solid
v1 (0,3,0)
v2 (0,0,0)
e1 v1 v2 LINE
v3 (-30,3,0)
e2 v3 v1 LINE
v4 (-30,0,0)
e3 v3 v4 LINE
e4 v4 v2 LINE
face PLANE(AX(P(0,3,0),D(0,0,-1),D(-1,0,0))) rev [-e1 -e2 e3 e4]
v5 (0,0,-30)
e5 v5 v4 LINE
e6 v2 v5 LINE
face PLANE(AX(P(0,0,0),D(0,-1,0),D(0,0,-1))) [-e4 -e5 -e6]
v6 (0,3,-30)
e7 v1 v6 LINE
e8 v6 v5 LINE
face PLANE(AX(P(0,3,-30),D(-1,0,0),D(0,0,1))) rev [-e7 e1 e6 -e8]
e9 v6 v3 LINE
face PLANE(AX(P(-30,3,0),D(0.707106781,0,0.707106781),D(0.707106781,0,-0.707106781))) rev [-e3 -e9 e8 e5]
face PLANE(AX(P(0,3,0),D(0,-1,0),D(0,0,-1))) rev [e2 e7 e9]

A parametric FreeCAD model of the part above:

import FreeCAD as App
import Part
import Sketcher

doc = App.newDocument("Part")
body = doc.addObject("PartDesign::Body", "Body")

sketch1 = doc.addObject("Sketcher::SketchObject", "Sketch")
body.addObject(sketch1)
sketch1.AttachmentSupport = (doc.XZ_Plane, [""])
sketch1.MapMode = "FlatFace"
sketch1.addGeometry(Part.LineSegment(App.Vector(-30, 0, 0), App.Vector(0, 0, 0)), False)
sketch1.addGeometry(Part.LineSegment(App.Vector(0, 0, 0), App.Vector(0, -30, 0)), False)
sketch1.addGeometry(Part.LineSegment(App.Vector(0, -30, 0), App.Vector(-30, 0, 0)), False)
sketch1.addConstraint(Sketcher.Constraint("Coincident", 0, 2, 1, 1))
sketch1.addConstraint(Sketcher.Constraint("Coincident", 1, 2, 2, 1))
sketch1.addConstraint(Sketcher.Constraint("Coincident", 2, 2, 0, 1))
sketch1.addConstraint(Sketcher.Constraint("Horizontal", 0))
sketch1.addConstraint(Sketcher.Constraint("Vertical", 1))
sketch1.addConstraint(Sketcher.Constraint("Coincident", 0, 2, -1, 1))
sketch1.addConstraint(Sketcher.Constraint("Equal", 0, 1))
sketch1.addConstraint(Sketcher.Constraint("DistanceX", 0, 1, 0, 2, 30.0))
pad1 = doc.addObject("PartDesign::Pad", "Pad")
body.addObject(pad1)
pad1.Profile = sketch1
pad1.Length = 3
pad1.Reversed = True

doc.recompute()
